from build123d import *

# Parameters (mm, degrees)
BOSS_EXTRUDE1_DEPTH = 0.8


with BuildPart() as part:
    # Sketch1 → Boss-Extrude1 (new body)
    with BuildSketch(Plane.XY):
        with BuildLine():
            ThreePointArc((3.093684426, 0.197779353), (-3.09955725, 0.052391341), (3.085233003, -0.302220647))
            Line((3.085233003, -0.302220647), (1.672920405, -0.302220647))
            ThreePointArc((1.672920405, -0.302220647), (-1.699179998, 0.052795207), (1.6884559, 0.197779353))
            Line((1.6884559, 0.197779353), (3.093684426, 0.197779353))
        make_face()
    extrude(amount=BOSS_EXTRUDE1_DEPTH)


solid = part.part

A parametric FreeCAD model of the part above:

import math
import FreeCAD as App
import Part
import Sketcher

V = App.Vector
Q = App.Units.Quantity

doc = App.newDocument("Part")
body = doc.addObject("PartDesign::Body", "Body")

# Sketch on XY plane
sketch1 = doc.addObject("Sketcher::SketchObject", "Sketch")
body.addObject(sketch1)
sketch1.AttachmentSupport = (doc.XY_Plane, [""])
sketch1.MapMode = "FlatFace"
sketch1.addGeometry([
    Part.ArcOfCircle(Part.Circle(V(0, 0, 0), V(0, 0, 1), 3.1), math.radians(4), math.radians(354)),
    Part.LineSegment(V(3.1, -0.3, 0), V(1.7, -0.3, 0)),
    Part.ArcOfCircle(Part.Circle(V(0, 0, 0), V(0, 0, 1), 1.7), math.radians(7), math.radians(350)),
    Part.LineSegment(V(1.7, 0.2, 0), V(3.1, 0.2, 0)),
], False)
sketch1.addConstraint([
    Sketcher.Constraint("Coincident", 0, 2, 1, 1),
    Sketcher.Constraint("Coincident", 1, 2, 2, 2),
    Sketcher.Constraint("Coincident", 2, 1, 3, 1),
    Sketcher.Constraint("Coincident", 3, 2, 0, 1),
    Sketcher.Constraint("Horizontal", 1),
    Sketcher.Constraint("Horizontal", 3),
    Sketcher.Constraint("Coincident", 0, 3, -1, 1),
    Sketcher.Constraint("Coincident", 2, 3, -1, 1),
    Sketcher.Constraint("Radius", 0, Q("3.1 mm")),
    Sketcher.Constraint("Radius", 2, Q("1.7 mm")),
    Sketcher.Constraint("DistanceY", 1, 2, 2, 1, Q("0.5 mm")),
    Sketcher.Constraint("DistanceX", 3, 1, 3, 2, Q("1.405229 mm")),
])
pad1 = doc.addObject("PartDesign::Pad", "Pad")
body.addObject(pad1)
pad1.Profile = sketch1
pad1.Length = 0.8

doc.recompute()
